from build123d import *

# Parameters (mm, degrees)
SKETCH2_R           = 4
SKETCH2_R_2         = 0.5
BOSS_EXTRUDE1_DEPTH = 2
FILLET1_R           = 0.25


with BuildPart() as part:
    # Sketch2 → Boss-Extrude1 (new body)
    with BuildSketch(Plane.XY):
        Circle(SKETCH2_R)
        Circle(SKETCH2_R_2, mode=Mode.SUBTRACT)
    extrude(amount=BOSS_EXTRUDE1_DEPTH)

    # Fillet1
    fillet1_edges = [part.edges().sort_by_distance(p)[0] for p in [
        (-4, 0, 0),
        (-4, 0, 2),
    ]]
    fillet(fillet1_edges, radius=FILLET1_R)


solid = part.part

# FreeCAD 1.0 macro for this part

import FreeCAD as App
import Part
import Sketcher

V = App.Vector


def edges_at(feature, points):
    """Names of the edges that pass closest to the given points."""
    edges = feature.Shape.Edges
    near = lambda p: min(range(len(edges)), key=lambda i: edges[i].distToShape(Part.Vertex(*p))[0])
    return sorted({f"Edge{near(p) + 1}" for p in points})

doc = App.newDocument("Part")
params = doc.addObject("Spreadsheet::Sheet", "Params")
for row, (alias, value) in enumerate([
    ("sketch1_diameter", "8 mm"),
    ("sketch1_diameter2", "1 mm"),
    ("pad1_length", "2 mm"),
    ("fillet_radius", "0.25 mm"),
], start=1):
    params.set(f"A{row}", alias)
    params.set(f"B{row}", "=" + value)
    params.setAlias(f"B{row}", alias)

body = doc.addObject("PartDesign::Body", "Body")

sketch1 = body.newObject("Sketcher::SketchObject", "Sketch")
sketch1.AttachmentSupport = (doc.getObject("XY_Plane"), [""])
sketch1.MapMode = "FlatFace"
sketch1.addGeometry([
    Part.Circle(V(0, 0, 0), V(0, 0, 1), 4),
    Part.Circle(V(0, 0, 0), V(0, 0, 1), 0.5),
], False)
sketch1.addConstraint([
    Sketcher.Constraint("Coincident", 0, 3, -1, 1),
    Sketcher.Constraint("Coincident", 1, 3, -1, 1),
    Sketcher.Constraint("Diameter", 0, 8.0),
    Sketcher.Constraint("Diameter", 1, 1.0),
])
sketch1.setExpression("Constraints[2]", "Params.sketch1_diameter")
sketch1.setExpression("Constraints[3]", "Params.sketch1_diameter2")
pad1 = body.newObject("PartDesign::Pad", "Pad")
pad1.Profile = sketch1
pad1.setExpression("Length", "Params.pad1_length")
doc.recompute()

fillet = body.newObject("PartDesign::Fillet", "Fillet")
fillet.Base = (pad1, edges_at(pad1, [(-4, 0, 0), (-4, 0, 2)]))
fillet.setExpression("Radius", "Params.fillet_radius")

doc.recompute()
